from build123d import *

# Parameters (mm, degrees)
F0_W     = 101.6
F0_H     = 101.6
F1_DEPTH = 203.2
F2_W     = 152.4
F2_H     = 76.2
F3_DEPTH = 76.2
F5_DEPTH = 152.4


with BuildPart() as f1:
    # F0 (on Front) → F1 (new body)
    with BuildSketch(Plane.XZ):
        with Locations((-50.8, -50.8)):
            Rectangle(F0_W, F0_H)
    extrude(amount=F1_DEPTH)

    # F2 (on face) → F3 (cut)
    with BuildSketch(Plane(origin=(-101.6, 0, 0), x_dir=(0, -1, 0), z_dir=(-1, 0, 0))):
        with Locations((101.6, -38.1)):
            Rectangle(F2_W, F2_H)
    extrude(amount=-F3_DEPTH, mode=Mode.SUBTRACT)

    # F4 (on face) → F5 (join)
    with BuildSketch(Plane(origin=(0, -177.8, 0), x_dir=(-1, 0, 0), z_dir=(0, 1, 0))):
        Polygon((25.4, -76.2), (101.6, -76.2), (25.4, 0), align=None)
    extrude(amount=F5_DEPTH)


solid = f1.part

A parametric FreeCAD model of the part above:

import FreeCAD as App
import Part
import Sketcher
Q = App.Units.Quantity

doc = App.newDocument("Part")
body = doc.addObject("PartDesign::Body", "Body")

# Sketch on XZ plane
sketch1 = body.newObject("Sketcher::SketchObject", "Sketch")
sketch1.AttachmentSupport = (doc.getObject("XZ_Plane"), [""])
sketch1.MapMode = "FlatFace"
sketch1.addGeometry(Part.LineSegment(App.Vector(-102, 0, 0), App.Vector(-102, -102, 0)), False)
sketch1.addGeometry(Part.LineSegment(App.Vector(-102, -102, 0), App.Vector(0, -102, 0)), False)
sketch1.addGeometry(Part.LineSegment(App.Vector(0, -102, 0), App.Vector(0, 0, 0)), False)
sketch1.addGeometry(Part.LineSegment(App.Vector(0, 0, 0), App.Vector(-102, 0, 0)), False)
sketch1.addConstraint(Sketcher.Constraint("Coincident", 0, 2, 1, 1))
sketch1.addConstraint(Sketcher.Constraint("Coincident", 1, 2, 2, 1))
sketch1.addConstraint(Sketcher.Constraint("Coincident", 2, 2, 3, 1))
sketch1.addConstraint(Sketcher.Constraint("Coincident", 3, 2, 0, 1))
sketch1.addConstraint(Sketcher.Constraint("Vertical", 0))
sketch1.addConstraint(Sketcher.Constraint("Horizontal", 1))
sketch1.addConstraint(Sketcher.Constraint("Vertical", 2))
sketch1.addConstraint(Sketcher.Constraint("Horizontal", 3))
sketch1.addConstraint(Sketcher.Constraint("Coincident", 2, 2, -1, 1))
sketch1.addConstraint(Sketcher.Constraint("Equal", 3, 0))
sketch1.addConstraint(Sketcher.Constraint("DistanceX", 1, 1, 1, 2, Q("4 in")))
pad1 = body.newObject("PartDesign::Pad", "Pad")
pad1.Profile = sketch1
pad1.Length = Q("8 in")

# Sketch on YZ plane
sketch2 = body.newObject("Sketcher::SketchObject", "Sketch001")
sketch2.AttachmentSupport = (doc.getObject("YZ_Plane"), [""])
sketch2.MapMode = "FlatFace"
sketch2.AttachmentOffset = App.Placement(App.Vector(0, 0, -4 * 25.4), App.Rotation())
sketch2.addGeometry(Part.LineSegment(App.Vector(-25, 0, 0), App.Vector(-25, -76, 0)), False)
sketch2.addGeometry(Part.LineSegment(App.Vector(-25, -76, 0), App.Vector(-178, -76, 0)), False)
sketch2.addGeometry(Part.LineSegment(App.Vector(-178, -76, 0), App.Vector(-178, 0, 0)), False)
sketch2.addGeometry(Part.LineSegment(App.Vector(-178, 0, 0), App.Vector(-25, 0, 0)), False)
sketch2.addConstraint(Sketcher.Constraint("Coincident", 0, 2, 1, 1))
sketch2.addConstraint(Sketcher.Constraint("Coincident", 1, 2, 2, 1))
sketch2.addConstraint(Sketcher.Constraint("Coincident", 2, 2, 3, 1))
sketch2.addConstraint(Sketcher.Constraint("Coincident", 3, 2, 0, 1))
sketch2.addConstraint(Sketcher.Constraint("Vertical", 0))
sketch2.addConstraint(Sketcher.Constraint("Horizontal", 1))
sketch2.addConstraint(Sketcher.Constraint("Vertical", 2))
sketch2.addConstraint(Sketcher.Constraint("Horizontal", 3))
sketch2.addConstraint(Sketcher.Constraint("PointOnObject", 2, 2, -1))
sketch2.addConstraint(Sketcher.Constraint("DistanceX", 1, 2, 1, 1, Q("6 in")))
sketch2.addConstraint(Sketcher.Constraint("DistanceY", 0, 2, 0, 1, Q("3 in")))
sketch2.addConstraint(Sketcher.Constraint("DistanceX", 0, 2, -1, 1, Q("1 in")))
pocket1 = body.newObject("PartDesign::Pocket", "Pocket")
pocket1.Profile = sketch2
pocket1.Length = Q("3 in")
pocket1.Reversed = True

# Sketch on XZ plane
sketch3 = body.newObject("Sketcher::SketchObject", "Sketch002")
sketch3.AttachmentSupport = (doc.getObject("XZ_Plane"), [""])
sketch3.MapMode = "FlatFace"
sketch3.AttachmentOffset = App.Placement(App.Vector(0, 0, 7 * 25.4), App.Rotation())
sketch3.addGeometry(Part.LineSegment(App.Vector(-25, -76, 0), App.Vector(-102, -76, 0)), False)
sketch3.addGeometry(Part.LineSegment(App.Vector(-102, -76, 0), App.Vector(-25, 0, 0)), False)
sketch3.addGeometry(Part.LineSegment(App.Vector(-25, 0, 0), App.Vector(-25, -76, 0)), False)
sketch3.addConstraint(Sketcher.Constraint("Coincident", 0, 2, 1, 1))
sketch3.addConstraint(Sketcher.Constraint("Coincident", 1, 2, 2, 1))
sketch3.addConstraint(Sketcher.Constraint("Coincident", 2, 2, 0, 1))
sketch3.addConstraint(Sketcher.Constraint("Horizontal", 0))
sketch3.addConstraint(Sketcher.Constraint("Vertical", 2))
sketch3.addConstraint(Sketcher.Constraint("PointOnObject", 1, 2, -1))
sketch3.addConstraint(Sketcher.Constraint("Equal", 0, 2))
sketch3.addConstraint(Sketcher.Constraint("DistanceX", 0, 2, 0, 1, Q("3 in")))
sketch3.addConstraint(Sketcher.Constraint("DistanceX", 0, 2, -1, 1, Q("4 in")))
pad2 = body.newObject("PartDesign::Pad", "Pad001")
pad2.Profile = sketch3
pad2.Length = Q("6 in")
pad2.Reversed = True

doc.recompute()
